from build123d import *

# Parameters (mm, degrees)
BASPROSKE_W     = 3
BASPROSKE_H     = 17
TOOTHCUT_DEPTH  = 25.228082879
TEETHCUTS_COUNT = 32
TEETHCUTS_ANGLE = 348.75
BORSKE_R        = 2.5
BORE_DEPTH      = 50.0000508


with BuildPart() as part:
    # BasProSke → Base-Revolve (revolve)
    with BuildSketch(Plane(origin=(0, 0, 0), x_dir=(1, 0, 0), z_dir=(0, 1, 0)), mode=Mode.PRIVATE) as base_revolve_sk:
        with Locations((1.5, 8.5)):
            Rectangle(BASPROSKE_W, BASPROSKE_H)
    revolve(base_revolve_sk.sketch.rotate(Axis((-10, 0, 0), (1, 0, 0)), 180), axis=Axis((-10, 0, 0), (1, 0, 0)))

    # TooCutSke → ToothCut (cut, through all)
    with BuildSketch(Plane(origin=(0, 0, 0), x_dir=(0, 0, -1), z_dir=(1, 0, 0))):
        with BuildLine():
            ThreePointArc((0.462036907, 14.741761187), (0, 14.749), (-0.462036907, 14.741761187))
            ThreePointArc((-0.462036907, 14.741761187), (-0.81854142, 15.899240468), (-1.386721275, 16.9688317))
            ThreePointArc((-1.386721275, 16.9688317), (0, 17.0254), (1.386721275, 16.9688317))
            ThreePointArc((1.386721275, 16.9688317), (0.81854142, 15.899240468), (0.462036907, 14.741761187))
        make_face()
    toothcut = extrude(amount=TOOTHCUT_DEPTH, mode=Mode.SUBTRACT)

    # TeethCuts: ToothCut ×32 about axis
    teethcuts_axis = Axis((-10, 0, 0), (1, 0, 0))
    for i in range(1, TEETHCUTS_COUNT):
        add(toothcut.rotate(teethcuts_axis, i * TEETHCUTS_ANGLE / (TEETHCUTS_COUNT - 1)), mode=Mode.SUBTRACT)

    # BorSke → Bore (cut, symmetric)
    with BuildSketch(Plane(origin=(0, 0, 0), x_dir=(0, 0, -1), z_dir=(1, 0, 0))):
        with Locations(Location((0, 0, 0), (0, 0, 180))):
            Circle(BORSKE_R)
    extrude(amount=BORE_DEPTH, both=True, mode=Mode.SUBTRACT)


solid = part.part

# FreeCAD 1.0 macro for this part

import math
import FreeCAD as App
import Part
import Sketcher

V = App.Vector
Q = App.Units.Quantity


def add_polygon(sketch, points):
    """Adds a closed chain of lines whose ends are joined by coincident constraints."""
    first, n = sketch.GeometryCount, len(points)
    for a, b in zip(points, points[1:] + points[:1]):
        sketch.addGeometry(Part.LineSegment(App.Vector(*a, 0), App.Vector(*b, 0)), False)
    for i in range(n):
        sketch.addConstraint(Sketcher.Constraint("Coincident", first + i, 2, first + (i + 1) % n, 1))

doc = App.newDocument("Part")
body = doc.addObject("PartDesign::Body", "Body")

# Sketch on XZ plane
sketch1 = body.newObject("Sketcher::SketchObject", "Sketch")
sketch1.AttachmentSupport = (doc.getObject("XZ_Plane"), [""])
sketch1.MapMode = "FlatFace"
add_polygon(sketch1, [(0, -17), (0, 0), (3, 0), (3, -17)])  # lines 0-3
sketch1.addConstraint([
    Sketcher.Constraint("Vertical", 0),
    Sketcher.Constraint("Horizontal", 1),
    Sketcher.Constraint("Vertical", 2),
    Sketcher.Constraint("Horizontal", 3),
    Sketcher.Constraint("Coincident", 0, 2, -1, 1),
    Sketcher.Constraint("DistanceX", 1, 1, 1, 2, Q("3 mm")),
    Sketcher.Constraint("DistanceY", 0, 1, 0, 2, Q("17 mm")),
])
revolution = body.newObject("PartDesign::Revolution", "Revolution")
revolution.Profile = sketch1
revolution.ReferenceAxis = (sketch1, ["H_Axis"])
revolution.Angle = 360

# Sketch on YZ plane
sketch2 = body.newObject("Sketcher::SketchObject", "Sketch001")
sketch2.AttachmentSupport = (doc.getObject("YZ_Plane"), [""])
sketch2.MapMode = "FlatFace"
sketch2.addGeometry([
    Part.ArcOfCircle(Part.Circle(V(0, 0, 0), V(0, 0, 1), 14.7), math.radians(-1.8), math.radians(1.8)),
    Part.ArcOfCircle(Part.Circle(V(13.4, -6.7, 0), V(0, 0, 1), 6.4), math.radians(57), math.radians(78)),
    Part.ArcOfCircle(Part.Circle(V(0, 0, 0), V(0, 0, 1), 17), math.radians(-4.67), math.radians(4.67)),
    Part.ArcOfCircle(Part.Circle(V(13.4, 6.7, 0), V(0, 0, 1), 6.4), math.radians(-78), math.radians(-57)),
], False)
sketch2.addConstraint([
    Sketcher.Constraint("Coincident", 0, 1, 1, 2),
    Sketcher.Constraint("Coincident", 1, 1, 2, 1),
    Sketcher.Constraint("Coincident", 2, 2, 3, 2),
    Sketcher.Constraint("Coincident", 3, 1, 0, 2),
    Sketcher.Constraint("Coincident", 0, 3, -1, 1),
    Sketcher.Constraint("Coincident", 2, 3, -1, 1),
    Sketcher.Constraint("Equal", 1, 3),
    Sketcher.Constraint("Symmetric", 1, 3, 3, 3, -1),
    Sketcher.Constraint("Radius", 1, Q("6.4 mm")),
    Sketcher.Constraint("Radius", 0, Q("14.749 mm")),
    Sketcher.Constraint("Radius", 2, Q("17.0254 mm")),
    Sketcher.Constraint("DistanceX", -1, 1, 1, 3, Q("13.44508 mm")),
    Sketcher.Constraint("DistanceX", -1, 1, 0, 1, Q("14.741761 mm")),
])
pocket1 = body.newObject("PartDesign::Pocket", "Pocket")
pocket1.Profile = sketch2
pocket1.Type = "ThroughAll"
pocket1.Reversed = True
doc.recompute()

polarpattern = body.newObject("PartDesign::PolarPattern", "PolarPattern")
polarpattern.Originals = [pocket1]
polarpattern.Axis = (doc.getObject("X_Axis"), [""])
polarpattern.Angle = 360
polarpattern.Occurrences = 32
body.Tip = polarpattern

# Sketch on YZ plane
sketch3 = body.newObject("Sketcher::SketchObject", "Sketch002")
sketch3.AttachmentSupport = (doc.getObject("YZ_Plane"), [""])
sketch3.MapMode = "FlatFace"
sketch3.addGeometry(Part.Circle(V(0, 0, 0), V(0, 0, 1), 2.5), False)
sketch3.addConstraint([
    Sketcher.Constraint("Coincident", 0, 3, -1, 1),
    Sketcher.Constraint("Diameter", 0, Q("5 mm")),
])
pocket2 = body.newObject("PartDesign::Pocket", "Pocket001")
pocket2.Profile = sketch3
pocket2.Length = 100.000102
pocket2.Midplane = True

doc.recompute()
